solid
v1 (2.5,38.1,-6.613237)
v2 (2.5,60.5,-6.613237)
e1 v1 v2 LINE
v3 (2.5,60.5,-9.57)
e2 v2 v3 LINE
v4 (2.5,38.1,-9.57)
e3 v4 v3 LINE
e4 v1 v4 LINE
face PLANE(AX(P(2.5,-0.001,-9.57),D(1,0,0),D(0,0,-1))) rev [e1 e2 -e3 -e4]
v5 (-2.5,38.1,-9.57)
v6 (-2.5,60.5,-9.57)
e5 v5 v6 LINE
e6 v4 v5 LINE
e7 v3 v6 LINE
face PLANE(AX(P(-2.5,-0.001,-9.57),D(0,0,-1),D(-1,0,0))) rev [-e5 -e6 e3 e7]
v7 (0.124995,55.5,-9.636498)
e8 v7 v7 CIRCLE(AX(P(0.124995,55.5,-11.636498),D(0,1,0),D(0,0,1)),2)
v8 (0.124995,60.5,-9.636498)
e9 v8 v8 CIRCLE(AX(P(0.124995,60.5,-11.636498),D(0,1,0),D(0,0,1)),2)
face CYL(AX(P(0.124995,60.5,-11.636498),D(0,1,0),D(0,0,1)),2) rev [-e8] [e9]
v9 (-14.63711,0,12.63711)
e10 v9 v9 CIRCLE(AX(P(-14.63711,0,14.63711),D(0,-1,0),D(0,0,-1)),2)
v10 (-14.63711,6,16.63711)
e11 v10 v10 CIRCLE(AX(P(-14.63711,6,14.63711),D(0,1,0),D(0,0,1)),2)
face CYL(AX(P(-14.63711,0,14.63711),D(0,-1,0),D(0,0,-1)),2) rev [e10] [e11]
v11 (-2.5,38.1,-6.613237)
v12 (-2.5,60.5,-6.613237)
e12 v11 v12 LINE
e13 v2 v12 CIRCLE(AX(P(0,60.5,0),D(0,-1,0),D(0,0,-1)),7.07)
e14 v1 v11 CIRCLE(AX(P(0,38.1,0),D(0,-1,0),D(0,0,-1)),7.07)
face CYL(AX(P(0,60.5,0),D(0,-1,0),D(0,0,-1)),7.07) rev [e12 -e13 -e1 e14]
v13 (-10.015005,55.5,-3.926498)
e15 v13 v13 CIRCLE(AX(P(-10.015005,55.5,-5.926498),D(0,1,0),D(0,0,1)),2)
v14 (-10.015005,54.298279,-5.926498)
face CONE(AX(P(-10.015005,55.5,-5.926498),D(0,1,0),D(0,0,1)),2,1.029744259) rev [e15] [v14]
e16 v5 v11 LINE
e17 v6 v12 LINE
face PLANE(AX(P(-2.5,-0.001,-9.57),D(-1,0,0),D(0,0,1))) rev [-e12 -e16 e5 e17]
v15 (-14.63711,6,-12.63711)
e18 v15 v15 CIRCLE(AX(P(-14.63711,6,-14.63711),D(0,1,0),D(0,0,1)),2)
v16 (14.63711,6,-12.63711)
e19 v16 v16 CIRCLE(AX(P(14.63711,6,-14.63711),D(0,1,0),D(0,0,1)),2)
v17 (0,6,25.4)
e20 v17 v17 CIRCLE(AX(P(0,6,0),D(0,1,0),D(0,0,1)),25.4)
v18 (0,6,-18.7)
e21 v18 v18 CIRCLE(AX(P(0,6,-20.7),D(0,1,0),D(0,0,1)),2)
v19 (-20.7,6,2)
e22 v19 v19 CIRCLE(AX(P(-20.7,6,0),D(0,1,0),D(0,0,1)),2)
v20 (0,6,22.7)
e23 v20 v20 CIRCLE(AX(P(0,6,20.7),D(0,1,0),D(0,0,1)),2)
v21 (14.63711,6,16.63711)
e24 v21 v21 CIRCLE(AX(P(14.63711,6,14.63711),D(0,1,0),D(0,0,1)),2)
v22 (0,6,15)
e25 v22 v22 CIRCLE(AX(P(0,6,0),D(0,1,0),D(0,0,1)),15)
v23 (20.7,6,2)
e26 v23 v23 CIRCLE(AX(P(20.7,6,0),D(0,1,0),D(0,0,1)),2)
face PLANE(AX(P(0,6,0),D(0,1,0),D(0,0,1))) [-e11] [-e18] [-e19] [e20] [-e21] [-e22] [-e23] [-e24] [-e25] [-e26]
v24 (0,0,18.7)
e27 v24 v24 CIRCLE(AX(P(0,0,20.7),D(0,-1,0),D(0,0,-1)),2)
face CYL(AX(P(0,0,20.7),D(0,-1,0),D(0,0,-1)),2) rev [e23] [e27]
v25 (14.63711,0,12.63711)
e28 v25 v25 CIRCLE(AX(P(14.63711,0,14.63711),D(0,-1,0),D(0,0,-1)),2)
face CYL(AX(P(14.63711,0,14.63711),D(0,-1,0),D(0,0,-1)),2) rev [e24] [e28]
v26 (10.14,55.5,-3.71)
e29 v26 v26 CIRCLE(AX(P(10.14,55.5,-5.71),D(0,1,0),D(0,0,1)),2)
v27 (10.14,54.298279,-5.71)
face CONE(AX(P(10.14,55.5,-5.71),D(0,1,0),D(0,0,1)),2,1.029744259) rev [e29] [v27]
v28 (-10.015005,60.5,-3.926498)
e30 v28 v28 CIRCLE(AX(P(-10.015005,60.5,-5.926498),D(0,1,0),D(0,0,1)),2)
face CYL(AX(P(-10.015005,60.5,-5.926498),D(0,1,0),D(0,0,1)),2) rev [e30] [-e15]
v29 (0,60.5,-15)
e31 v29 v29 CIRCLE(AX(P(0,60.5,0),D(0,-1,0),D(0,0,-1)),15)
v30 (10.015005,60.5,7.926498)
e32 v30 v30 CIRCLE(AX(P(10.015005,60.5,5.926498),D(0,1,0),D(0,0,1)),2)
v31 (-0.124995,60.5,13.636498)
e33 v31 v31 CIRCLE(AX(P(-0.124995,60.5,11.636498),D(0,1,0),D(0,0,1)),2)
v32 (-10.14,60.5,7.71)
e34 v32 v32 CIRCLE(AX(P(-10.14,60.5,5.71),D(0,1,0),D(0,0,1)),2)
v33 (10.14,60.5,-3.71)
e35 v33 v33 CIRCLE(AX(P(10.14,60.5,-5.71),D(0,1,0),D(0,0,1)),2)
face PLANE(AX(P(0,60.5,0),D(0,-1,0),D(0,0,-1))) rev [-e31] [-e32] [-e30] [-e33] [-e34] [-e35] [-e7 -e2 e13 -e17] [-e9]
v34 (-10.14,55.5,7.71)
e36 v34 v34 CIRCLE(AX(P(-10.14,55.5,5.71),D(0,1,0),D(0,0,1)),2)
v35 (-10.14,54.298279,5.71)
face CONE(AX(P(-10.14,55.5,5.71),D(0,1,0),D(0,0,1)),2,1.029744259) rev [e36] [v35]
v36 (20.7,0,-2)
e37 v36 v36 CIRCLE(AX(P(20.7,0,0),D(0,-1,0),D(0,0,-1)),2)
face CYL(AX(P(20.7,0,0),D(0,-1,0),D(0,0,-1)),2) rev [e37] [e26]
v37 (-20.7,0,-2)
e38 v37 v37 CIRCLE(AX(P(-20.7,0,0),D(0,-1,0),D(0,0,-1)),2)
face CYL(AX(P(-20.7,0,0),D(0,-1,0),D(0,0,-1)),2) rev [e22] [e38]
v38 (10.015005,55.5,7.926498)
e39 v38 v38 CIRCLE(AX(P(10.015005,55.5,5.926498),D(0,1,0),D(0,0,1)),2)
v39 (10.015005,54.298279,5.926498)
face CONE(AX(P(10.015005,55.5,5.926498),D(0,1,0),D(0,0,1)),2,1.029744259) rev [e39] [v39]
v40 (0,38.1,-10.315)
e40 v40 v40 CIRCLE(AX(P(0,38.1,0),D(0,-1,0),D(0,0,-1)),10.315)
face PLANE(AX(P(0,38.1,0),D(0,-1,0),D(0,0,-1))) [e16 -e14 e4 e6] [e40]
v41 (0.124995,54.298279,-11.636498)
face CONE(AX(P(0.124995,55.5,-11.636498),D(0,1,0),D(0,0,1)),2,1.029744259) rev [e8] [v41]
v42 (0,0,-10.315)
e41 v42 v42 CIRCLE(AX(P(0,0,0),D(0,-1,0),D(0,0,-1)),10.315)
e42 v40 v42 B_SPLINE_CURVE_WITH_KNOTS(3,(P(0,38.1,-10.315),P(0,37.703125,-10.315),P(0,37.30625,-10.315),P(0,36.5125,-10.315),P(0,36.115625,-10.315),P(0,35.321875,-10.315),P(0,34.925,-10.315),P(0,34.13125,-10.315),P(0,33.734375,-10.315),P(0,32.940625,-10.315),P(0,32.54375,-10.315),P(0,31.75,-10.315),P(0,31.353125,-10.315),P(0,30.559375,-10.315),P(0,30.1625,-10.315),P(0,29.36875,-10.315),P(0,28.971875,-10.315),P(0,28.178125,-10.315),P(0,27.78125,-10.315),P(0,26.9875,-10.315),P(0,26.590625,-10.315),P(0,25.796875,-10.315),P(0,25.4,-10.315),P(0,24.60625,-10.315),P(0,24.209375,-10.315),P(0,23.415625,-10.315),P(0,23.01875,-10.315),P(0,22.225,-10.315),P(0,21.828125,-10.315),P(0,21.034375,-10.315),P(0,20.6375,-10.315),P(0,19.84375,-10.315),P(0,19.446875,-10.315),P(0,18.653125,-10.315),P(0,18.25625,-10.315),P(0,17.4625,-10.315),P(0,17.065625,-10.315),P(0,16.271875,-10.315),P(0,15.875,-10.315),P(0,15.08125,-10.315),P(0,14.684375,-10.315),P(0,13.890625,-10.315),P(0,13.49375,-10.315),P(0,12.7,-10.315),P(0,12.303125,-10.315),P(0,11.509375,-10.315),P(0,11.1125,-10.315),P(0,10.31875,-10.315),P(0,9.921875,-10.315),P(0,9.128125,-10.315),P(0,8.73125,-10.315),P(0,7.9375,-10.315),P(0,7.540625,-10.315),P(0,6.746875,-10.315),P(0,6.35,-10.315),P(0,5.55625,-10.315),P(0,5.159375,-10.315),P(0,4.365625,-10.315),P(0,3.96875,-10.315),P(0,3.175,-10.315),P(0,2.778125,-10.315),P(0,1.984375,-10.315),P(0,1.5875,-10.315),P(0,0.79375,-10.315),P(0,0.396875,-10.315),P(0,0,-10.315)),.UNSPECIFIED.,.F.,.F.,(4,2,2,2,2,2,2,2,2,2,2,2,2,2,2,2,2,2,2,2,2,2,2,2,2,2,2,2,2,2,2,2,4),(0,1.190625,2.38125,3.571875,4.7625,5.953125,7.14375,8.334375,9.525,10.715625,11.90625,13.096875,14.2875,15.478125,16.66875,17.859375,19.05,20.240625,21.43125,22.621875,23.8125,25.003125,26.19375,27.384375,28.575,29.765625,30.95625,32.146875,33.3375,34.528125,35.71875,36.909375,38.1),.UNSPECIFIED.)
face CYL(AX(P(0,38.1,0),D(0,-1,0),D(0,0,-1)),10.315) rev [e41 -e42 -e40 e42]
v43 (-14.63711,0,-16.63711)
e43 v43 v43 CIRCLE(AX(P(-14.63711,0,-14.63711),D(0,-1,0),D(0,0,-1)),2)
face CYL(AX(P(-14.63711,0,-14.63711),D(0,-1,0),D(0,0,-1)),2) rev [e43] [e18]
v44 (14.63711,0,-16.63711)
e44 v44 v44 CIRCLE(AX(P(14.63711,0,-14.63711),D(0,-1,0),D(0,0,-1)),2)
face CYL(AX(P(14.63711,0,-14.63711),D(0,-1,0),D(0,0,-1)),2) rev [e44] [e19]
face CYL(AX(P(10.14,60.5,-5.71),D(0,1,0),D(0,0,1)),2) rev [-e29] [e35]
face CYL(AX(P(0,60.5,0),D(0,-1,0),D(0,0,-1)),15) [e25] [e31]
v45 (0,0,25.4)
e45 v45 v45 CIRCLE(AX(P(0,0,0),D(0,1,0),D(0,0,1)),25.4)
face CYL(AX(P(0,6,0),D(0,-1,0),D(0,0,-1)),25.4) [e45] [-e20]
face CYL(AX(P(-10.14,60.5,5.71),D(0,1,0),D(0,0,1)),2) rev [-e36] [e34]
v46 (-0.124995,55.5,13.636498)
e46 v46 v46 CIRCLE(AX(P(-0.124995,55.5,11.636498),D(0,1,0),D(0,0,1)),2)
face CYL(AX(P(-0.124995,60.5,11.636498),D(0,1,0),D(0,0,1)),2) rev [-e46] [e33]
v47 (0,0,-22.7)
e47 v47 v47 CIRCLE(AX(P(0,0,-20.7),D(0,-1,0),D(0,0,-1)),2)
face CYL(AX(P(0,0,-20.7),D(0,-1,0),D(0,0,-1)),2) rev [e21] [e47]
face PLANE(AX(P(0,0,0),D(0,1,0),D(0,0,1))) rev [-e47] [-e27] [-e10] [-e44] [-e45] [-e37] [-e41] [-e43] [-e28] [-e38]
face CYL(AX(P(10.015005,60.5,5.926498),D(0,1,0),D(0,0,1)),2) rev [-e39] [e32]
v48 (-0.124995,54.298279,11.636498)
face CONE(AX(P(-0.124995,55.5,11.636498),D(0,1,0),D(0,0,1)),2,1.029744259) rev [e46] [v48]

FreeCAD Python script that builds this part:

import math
import FreeCAD as App
import Part
import Sketcher
Q = App.Units.Quantity

doc = App.newDocument("Part")
body = doc.addObject("PartDesign::Body", "Body")

# Sketch on XZ plane
sketch1 = doc.addObject("Sketcher::SketchObject", "Sketch")
body.addObject(sketch1)
sketch1.AttachmentSupport = (doc.XZ_Plane, [""])
sketch1.MapMode = "FlatFace"
sketch1.addGeometry(Part.Circle(App.Vector(0, 0, 0), App.Vector(0, 0, 1), 25), False)
sketch1.addConstraint([
    Sketcher.Constraint("Coincident", 0, 3, -1, 1),
    Sketcher.Constraint("Diameter", 0, Q("50.8 mm")),
])
pad1 = doc.addObject("PartDesign::Pad", "Pad")
body.addObject(pad1)
pad1.Profile = sketch1
pad1.Length = 6
pad1.Reversed = True

# Sketch on XZ plane
sketch2 = doc.addObject("Sketcher::SketchObject", "Sketch001")
body.addObject(sketch2)
sketch2.AttachmentSupport = (doc.XZ_Plane, [""])
sketch2.MapMode = "FlatFace"
sketch2.addGeometry(Part.Circle(App.Vector(0, 0, 0), App.Vector(0, 0, 1), 15), False)
sketch2.addConstraint([
    Sketcher.Constraint("Coincident", 0, 3, -1, 1),
    Sketcher.Constraint("Diameter", 0, Q("30 mm")),
])
pad2 = doc.addObject("PartDesign::Pad", "Pad001")
body.addObject(pad2)
pad2.Profile = sketch2
pad2.Length = 60.5
pad2.Reversed = True

# Sketch on XZ plane
sketch3 = doc.addObject("Sketcher::SketchObject", "Sketch002")
body.addObject(sketch3)
sketch3.AttachmentSupport = (doc.XZ_Plane, [""])
sketch3.MapMode = "FlatFace"
sketch3.addGeometry(Part.Circle(App.Vector(0, 0, 0), App.Vector(0, 0, 1), 10), False)
sketch3.addConstraint([
    Sketcher.Constraint("Coincident", 0, 3, -1, 1),
    Sketcher.Constraint("Diameter", 0, Q("20.63 mm")),
])
pocket1 = doc.addObject("PartDesign::Pocket", "Pocket")
body.addObject(pocket1)
pocket1.Profile = sketch3
pocket1.Length = 38.1

# Sketch on XZ plane
sketch4 = doc.addObject("Sketcher::SketchObject", "Sketch003")
body.addObject(sketch4)
sketch4.AttachmentSupport = (doc.XZ_Plane, [""])
sketch4.MapMode = "FlatFace"
sketch4.AttachmentOffset = App.Placement(App.Vector(0, 0, -38.1), App.Rotation())
sketch4.addGeometry(Part.Circle(App.Vector(0, 0, 0), App.Vector(0, 0, 1), 7), False)
sketch4.addConstraint([
    Sketcher.Constraint("Coincident", 0, 3, -1, 1),
    Sketcher.Constraint("Diameter", 0, Q("14.14 mm")),
])
pocket2 = doc.addObject("PartDesign::Pocket", "Pocket001")
body.addObject(pocket2)
pocket2.Profile = sketch4
pocket2.Type = "ThroughAll"

# Sketch on XZ plane
sketch5 = doc.addObject("Sketcher::SketchObject", "Sketch004")
body.addObject(sketch5)
sketch5.AttachmentSupport = (doc.XZ_Plane, [""])
sketch5.MapMode = "FlatFace"
sketch5.addGeometry(Part.Circle(App.Vector(0, -20.7, 0), App.Vector(0, 0, 1), 2), False)
sketch5.addConstraint([
    Sketcher.Constraint("PointOnObject", 0, 3, -2),
    Sketcher.Constraint("Diameter", 0, Q("4 mm")),
    Sketcher.Constraint("DistanceY", 0, 3, -1, 1, Q("20.7 mm")),
])
doc.recompute()
hole = doc.addObject("PartDesign::Hole", "Hole")
body.addObject(hole)
hole.Profile = sketch5
hole.ThreadType = "None"
hole.Diameter = 4
hole.DepthType = "ThroughAll"
doc.recompute()

polarpattern = doc.addObject("PartDesign::PolarPattern", "PolarPattern")
body.addObject(polarpattern)
polarpattern.Originals = [hole]
polarpattern.Axis = (doc.Y_Axis, [""])
polarpattern.Angle = 360
polarpattern.Occurrences = 8
body.Tip = polarpattern

# Sketch on YZ plane
sketch6 = doc.addObject("Sketcher::SketchObject", "Sketch005")
body.addObject(sketch6)
sketch6.AttachmentSupport = (doc.YZ_Plane, [""])
sketch6.MapMode = "FlatFace"
sketch6.AttachmentOffset = App.Placement(App.Vector(0, 0, -10.14), App.Rotation())
sketch6.addGeometry([
    Part.LineSegment(App.Vector(54.3, 5.7, 0), App.Vector(60.5, 5.7, 0)),
    Part.LineSegment(App.Vector(60.5, 5.7, 0), App.Vector(60.5, 7.7, 0)),
    Part.LineSegment(App.Vector(60.5, 7.7, 0), App.Vector(55.5, 7.7, 0)),
    Part.LineSegment(App.Vector(55.5, 7.7, 0), App.Vector(54.3, 5.7, 0)),
], False)
sketch6.addGeometry(Part.LineSegment(App.Vector(60.5, 5.7, 0), App.Vector(54.3, 5.7, 0)), True)  # axis
sketch6.addConstraint([
    Sketcher.Constraint("Coincident", 0, 2, 1, 1),
    Sketcher.Constraint("Coincident", 1, 2, 2, 1),
    Sketcher.Constraint("Coincident", 2, 2, 3, 1),
    Sketcher.Constraint("Coincident", 3, 2, 0, 1),
    Sketcher.Constraint("Horizontal", 0),
    Sketcher.Constraint("Vertical", 1),
    Sketcher.Constraint("Horizontal", 2),
    Sketcher.Constraint("Horizontal", 4),
    Sketcher.Constraint("Coincident", 4, 1, 0, 2),
    Sketcher.Constraint("Equal", 0, 4),
    Sketcher.Constraint("DistanceX", 2, 2, 2, 1, Q("5 mm")),
    Sketcher.Constraint("DistanceY", 1, 1, 1, 2, Q("2 mm")),
    Sketcher.Constraint("Angle", 3, Q("-121 deg")),
    Sketcher.Constraint("DistanceX", -1, 1, 0, 2, Q("60.5 mm")),
    Sketcher.Constraint("DistanceY", -1, 1, 0, 2, Q("5.71 mm")),
])
groove = doc.addObject("PartDesign::Groove", "Groove")
body.addObject(groove)
groove.Profile = sketch6
groove.ReferenceAxis = (sketch6, ["Axis0"])
groove.Angle = 360
doc.recompute()

polarpattern2 = doc.addObject("PartDesign::PolarPattern", "PolarPattern001")
body.addObject(polarpattern2)
polarpattern2.Originals = [groove]
polarpattern2.Axis = (doc.Y_Axis, [""])
polarpattern2.Angle = 360
polarpattern2.Occurrences = 6
body.Tip = polarpattern2

# Sketch on XZ plane
sketch7 = doc.addObject("Sketcher::SketchObject", "Sketch006")
body.addObject(sketch7)
sketch7.AttachmentSupport = (doc.XZ_Plane, [""])
sketch7.MapMode = "FlatFace"
sketch7.AttachmentOffset = App.Placement(App.Vector(0, 0, -60.5), App.Rotation())
sketch7.addGeometry([
    Part.LineSegment(App.Vector(2.5, -9.6, 0), App.Vector(-2.5, -9.6, 0)),
    Part.LineSegment(App.Vector(-2.5, -9.6, 0), App.Vector(-2.5, -6.6, 0)),
    Part.ArcOfCircle(Part.Circle(App.Vector(0, 0, 0), App.Vector(0, 0, 1), 7.1), math.radians(-111), math.radians(-69)),
    Part.LineSegment(App.Vector(2.5, -6.6, 0), App.Vector(2.5, -9.6, 0)),
], False)
sketch7.addConstraint([
    Sketcher.Constraint("Coincident", 0, 2, 1, 1),
    Sketcher.Constraint("Coincident", 1, 2, 2, 1),
    Sketcher.Constraint("Coincident", 2, 2, 3, 1),
    Sketcher.Constraint("Coincident", 3, 2, 0, 1),
    Sketcher.Constraint("Horizontal", 0),
    Sketcher.Constraint("Vertical", 1),
    Sketcher.Constraint("Vertical", 3),
    Sketcher.Constraint("Coincident", 2, 3, -1, 1),
    Sketcher.Constraint("Horizontal", 1, 2, 2, 2),
    Sketcher.Constraint("DistanceX", 0, 2, 0, 1, Q("5 mm")),
    Sketcher.Constraint("Radius", 2, Q("7.07 mm")),
    Sketcher.Constraint("DistanceY", 0, 2, -1, 1, Q("9.57 mm")),
])
pocket3 = doc.addObject("PartDesign::Pocket", "Pocket002")
body.addObject(pocket3)
pocket3.Profile = sketch7
pocket3.Type = "UpToFirst"
pocket3.Reversed = True

doc.recompute()
